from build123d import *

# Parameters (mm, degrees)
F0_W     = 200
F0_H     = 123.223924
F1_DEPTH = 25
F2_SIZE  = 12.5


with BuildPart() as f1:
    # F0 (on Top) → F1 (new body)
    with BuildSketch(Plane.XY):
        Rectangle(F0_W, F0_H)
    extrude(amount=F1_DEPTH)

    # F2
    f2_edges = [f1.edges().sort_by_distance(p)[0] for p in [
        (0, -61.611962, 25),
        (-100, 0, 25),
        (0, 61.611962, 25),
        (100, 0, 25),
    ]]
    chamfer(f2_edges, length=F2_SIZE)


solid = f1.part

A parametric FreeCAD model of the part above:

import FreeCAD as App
import Part
import Sketcher
from FreeCAD import Vector


def edges_at(feature, points):
    """Names of the edges that pass closest to the given points."""
    edges = feature.Shape.Edges
    near = lambda p: min(range(len(edges)), key=lambda i: edges[i].distToShape(Part.Vertex(*p))[0])
    return sorted({f"Edge{near(p) + 1}" for p in points})

doc = App.newDocument("Part")
params = doc.addObject("Spreadsheet::Sheet", "Params")
for row, (alias, value) in enumerate([
    ("sketch1_width", "200 mm"),
    ("pad1_length", "25 mm"),
    ("chamfer_size", "12.5 mm"),
], start=1):
    params.set(f"A{row}", alias)
    params.set(f"B{row}", "=" + value)
    params.setAlias(f"B{row}", alias)

body = doc.addObject("PartDesign::Body", "Body")

sketch1 = body.newObject("Sketcher::SketchObject", "Sketch")
sketch1.AttachmentSupport = (doc.getObject("XY_Plane"), [""])
sketch1.MapMode = "FlatFace"
sketch1.addGeometry(Part.LineSegment(Vector(-100, 61.611962, 0), Vector(-100, -61.611962, 0)), False)
sketch1.addGeometry(Part.LineSegment(Vector(-100, -61.611962, 0), Vector(100, -61.611962, 0)), False)
sketch1.addGeometry(Part.LineSegment(Vector(100, -61.611962, 0), Vector(100, 61.611962, 0)), False)
sketch1.addGeometry(Part.LineSegment(Vector(100, 61.611962, 0), Vector(-100, 61.611962, 0)), False)
sketch1.addConstraint(Sketcher.Constraint("Coincident", 0, 2, 1, 1))
sketch1.addConstraint(Sketcher.Constraint("Coincident", 1, 2, 2, 1))
sketch1.addConstraint(Sketcher.Constraint("Coincident", 2, 2, 3, 1))
sketch1.addConstraint(Sketcher.Constraint("Coincident", 3, 2, 0, 1))
sketch1.addConstraint(Sketcher.Constraint("Vertical", 0))
sketch1.addConstraint(Sketcher.Constraint("Horizontal", 1))
sketch1.addConstraint(Sketcher.Constraint("Vertical", 2))
sketch1.addConstraint(Sketcher.Constraint("Horizontal", 3))
sketch1.addConstraint(Sketcher.Constraint("Symmetric", 0, 2, 2, 2, -1, 1))
sketch1.addConstraint(Sketcher.Constraint("DistanceX", 1, 1, 1, 2, 200.0))
sketch1.addConstraint(Sketcher.Constraint("DistanceY", 0, 2, 0, 1, 123.223924))
sketch1.setExpression("Constraints[9]", "Params.sketch1_width")
pad1 = body.newObject("PartDesign::Pad", "Pad")
pad1.Profile = sketch1
pad1.setExpression("Length", "Params.pad1_length")
doc.recompute()

chamfer = body.newObject("PartDesign::Chamfer", "Chamfer")
chamfer.Base = (pad1, edges_at(pad1, [
    (0, -61.612, 25),
    (-100, 0, 25),
    (0, 61.612, 25),
    (100, 0, 25),
]))
chamfer.setExpression("Size", "Params.chamfer_size")

doc.recompute()
